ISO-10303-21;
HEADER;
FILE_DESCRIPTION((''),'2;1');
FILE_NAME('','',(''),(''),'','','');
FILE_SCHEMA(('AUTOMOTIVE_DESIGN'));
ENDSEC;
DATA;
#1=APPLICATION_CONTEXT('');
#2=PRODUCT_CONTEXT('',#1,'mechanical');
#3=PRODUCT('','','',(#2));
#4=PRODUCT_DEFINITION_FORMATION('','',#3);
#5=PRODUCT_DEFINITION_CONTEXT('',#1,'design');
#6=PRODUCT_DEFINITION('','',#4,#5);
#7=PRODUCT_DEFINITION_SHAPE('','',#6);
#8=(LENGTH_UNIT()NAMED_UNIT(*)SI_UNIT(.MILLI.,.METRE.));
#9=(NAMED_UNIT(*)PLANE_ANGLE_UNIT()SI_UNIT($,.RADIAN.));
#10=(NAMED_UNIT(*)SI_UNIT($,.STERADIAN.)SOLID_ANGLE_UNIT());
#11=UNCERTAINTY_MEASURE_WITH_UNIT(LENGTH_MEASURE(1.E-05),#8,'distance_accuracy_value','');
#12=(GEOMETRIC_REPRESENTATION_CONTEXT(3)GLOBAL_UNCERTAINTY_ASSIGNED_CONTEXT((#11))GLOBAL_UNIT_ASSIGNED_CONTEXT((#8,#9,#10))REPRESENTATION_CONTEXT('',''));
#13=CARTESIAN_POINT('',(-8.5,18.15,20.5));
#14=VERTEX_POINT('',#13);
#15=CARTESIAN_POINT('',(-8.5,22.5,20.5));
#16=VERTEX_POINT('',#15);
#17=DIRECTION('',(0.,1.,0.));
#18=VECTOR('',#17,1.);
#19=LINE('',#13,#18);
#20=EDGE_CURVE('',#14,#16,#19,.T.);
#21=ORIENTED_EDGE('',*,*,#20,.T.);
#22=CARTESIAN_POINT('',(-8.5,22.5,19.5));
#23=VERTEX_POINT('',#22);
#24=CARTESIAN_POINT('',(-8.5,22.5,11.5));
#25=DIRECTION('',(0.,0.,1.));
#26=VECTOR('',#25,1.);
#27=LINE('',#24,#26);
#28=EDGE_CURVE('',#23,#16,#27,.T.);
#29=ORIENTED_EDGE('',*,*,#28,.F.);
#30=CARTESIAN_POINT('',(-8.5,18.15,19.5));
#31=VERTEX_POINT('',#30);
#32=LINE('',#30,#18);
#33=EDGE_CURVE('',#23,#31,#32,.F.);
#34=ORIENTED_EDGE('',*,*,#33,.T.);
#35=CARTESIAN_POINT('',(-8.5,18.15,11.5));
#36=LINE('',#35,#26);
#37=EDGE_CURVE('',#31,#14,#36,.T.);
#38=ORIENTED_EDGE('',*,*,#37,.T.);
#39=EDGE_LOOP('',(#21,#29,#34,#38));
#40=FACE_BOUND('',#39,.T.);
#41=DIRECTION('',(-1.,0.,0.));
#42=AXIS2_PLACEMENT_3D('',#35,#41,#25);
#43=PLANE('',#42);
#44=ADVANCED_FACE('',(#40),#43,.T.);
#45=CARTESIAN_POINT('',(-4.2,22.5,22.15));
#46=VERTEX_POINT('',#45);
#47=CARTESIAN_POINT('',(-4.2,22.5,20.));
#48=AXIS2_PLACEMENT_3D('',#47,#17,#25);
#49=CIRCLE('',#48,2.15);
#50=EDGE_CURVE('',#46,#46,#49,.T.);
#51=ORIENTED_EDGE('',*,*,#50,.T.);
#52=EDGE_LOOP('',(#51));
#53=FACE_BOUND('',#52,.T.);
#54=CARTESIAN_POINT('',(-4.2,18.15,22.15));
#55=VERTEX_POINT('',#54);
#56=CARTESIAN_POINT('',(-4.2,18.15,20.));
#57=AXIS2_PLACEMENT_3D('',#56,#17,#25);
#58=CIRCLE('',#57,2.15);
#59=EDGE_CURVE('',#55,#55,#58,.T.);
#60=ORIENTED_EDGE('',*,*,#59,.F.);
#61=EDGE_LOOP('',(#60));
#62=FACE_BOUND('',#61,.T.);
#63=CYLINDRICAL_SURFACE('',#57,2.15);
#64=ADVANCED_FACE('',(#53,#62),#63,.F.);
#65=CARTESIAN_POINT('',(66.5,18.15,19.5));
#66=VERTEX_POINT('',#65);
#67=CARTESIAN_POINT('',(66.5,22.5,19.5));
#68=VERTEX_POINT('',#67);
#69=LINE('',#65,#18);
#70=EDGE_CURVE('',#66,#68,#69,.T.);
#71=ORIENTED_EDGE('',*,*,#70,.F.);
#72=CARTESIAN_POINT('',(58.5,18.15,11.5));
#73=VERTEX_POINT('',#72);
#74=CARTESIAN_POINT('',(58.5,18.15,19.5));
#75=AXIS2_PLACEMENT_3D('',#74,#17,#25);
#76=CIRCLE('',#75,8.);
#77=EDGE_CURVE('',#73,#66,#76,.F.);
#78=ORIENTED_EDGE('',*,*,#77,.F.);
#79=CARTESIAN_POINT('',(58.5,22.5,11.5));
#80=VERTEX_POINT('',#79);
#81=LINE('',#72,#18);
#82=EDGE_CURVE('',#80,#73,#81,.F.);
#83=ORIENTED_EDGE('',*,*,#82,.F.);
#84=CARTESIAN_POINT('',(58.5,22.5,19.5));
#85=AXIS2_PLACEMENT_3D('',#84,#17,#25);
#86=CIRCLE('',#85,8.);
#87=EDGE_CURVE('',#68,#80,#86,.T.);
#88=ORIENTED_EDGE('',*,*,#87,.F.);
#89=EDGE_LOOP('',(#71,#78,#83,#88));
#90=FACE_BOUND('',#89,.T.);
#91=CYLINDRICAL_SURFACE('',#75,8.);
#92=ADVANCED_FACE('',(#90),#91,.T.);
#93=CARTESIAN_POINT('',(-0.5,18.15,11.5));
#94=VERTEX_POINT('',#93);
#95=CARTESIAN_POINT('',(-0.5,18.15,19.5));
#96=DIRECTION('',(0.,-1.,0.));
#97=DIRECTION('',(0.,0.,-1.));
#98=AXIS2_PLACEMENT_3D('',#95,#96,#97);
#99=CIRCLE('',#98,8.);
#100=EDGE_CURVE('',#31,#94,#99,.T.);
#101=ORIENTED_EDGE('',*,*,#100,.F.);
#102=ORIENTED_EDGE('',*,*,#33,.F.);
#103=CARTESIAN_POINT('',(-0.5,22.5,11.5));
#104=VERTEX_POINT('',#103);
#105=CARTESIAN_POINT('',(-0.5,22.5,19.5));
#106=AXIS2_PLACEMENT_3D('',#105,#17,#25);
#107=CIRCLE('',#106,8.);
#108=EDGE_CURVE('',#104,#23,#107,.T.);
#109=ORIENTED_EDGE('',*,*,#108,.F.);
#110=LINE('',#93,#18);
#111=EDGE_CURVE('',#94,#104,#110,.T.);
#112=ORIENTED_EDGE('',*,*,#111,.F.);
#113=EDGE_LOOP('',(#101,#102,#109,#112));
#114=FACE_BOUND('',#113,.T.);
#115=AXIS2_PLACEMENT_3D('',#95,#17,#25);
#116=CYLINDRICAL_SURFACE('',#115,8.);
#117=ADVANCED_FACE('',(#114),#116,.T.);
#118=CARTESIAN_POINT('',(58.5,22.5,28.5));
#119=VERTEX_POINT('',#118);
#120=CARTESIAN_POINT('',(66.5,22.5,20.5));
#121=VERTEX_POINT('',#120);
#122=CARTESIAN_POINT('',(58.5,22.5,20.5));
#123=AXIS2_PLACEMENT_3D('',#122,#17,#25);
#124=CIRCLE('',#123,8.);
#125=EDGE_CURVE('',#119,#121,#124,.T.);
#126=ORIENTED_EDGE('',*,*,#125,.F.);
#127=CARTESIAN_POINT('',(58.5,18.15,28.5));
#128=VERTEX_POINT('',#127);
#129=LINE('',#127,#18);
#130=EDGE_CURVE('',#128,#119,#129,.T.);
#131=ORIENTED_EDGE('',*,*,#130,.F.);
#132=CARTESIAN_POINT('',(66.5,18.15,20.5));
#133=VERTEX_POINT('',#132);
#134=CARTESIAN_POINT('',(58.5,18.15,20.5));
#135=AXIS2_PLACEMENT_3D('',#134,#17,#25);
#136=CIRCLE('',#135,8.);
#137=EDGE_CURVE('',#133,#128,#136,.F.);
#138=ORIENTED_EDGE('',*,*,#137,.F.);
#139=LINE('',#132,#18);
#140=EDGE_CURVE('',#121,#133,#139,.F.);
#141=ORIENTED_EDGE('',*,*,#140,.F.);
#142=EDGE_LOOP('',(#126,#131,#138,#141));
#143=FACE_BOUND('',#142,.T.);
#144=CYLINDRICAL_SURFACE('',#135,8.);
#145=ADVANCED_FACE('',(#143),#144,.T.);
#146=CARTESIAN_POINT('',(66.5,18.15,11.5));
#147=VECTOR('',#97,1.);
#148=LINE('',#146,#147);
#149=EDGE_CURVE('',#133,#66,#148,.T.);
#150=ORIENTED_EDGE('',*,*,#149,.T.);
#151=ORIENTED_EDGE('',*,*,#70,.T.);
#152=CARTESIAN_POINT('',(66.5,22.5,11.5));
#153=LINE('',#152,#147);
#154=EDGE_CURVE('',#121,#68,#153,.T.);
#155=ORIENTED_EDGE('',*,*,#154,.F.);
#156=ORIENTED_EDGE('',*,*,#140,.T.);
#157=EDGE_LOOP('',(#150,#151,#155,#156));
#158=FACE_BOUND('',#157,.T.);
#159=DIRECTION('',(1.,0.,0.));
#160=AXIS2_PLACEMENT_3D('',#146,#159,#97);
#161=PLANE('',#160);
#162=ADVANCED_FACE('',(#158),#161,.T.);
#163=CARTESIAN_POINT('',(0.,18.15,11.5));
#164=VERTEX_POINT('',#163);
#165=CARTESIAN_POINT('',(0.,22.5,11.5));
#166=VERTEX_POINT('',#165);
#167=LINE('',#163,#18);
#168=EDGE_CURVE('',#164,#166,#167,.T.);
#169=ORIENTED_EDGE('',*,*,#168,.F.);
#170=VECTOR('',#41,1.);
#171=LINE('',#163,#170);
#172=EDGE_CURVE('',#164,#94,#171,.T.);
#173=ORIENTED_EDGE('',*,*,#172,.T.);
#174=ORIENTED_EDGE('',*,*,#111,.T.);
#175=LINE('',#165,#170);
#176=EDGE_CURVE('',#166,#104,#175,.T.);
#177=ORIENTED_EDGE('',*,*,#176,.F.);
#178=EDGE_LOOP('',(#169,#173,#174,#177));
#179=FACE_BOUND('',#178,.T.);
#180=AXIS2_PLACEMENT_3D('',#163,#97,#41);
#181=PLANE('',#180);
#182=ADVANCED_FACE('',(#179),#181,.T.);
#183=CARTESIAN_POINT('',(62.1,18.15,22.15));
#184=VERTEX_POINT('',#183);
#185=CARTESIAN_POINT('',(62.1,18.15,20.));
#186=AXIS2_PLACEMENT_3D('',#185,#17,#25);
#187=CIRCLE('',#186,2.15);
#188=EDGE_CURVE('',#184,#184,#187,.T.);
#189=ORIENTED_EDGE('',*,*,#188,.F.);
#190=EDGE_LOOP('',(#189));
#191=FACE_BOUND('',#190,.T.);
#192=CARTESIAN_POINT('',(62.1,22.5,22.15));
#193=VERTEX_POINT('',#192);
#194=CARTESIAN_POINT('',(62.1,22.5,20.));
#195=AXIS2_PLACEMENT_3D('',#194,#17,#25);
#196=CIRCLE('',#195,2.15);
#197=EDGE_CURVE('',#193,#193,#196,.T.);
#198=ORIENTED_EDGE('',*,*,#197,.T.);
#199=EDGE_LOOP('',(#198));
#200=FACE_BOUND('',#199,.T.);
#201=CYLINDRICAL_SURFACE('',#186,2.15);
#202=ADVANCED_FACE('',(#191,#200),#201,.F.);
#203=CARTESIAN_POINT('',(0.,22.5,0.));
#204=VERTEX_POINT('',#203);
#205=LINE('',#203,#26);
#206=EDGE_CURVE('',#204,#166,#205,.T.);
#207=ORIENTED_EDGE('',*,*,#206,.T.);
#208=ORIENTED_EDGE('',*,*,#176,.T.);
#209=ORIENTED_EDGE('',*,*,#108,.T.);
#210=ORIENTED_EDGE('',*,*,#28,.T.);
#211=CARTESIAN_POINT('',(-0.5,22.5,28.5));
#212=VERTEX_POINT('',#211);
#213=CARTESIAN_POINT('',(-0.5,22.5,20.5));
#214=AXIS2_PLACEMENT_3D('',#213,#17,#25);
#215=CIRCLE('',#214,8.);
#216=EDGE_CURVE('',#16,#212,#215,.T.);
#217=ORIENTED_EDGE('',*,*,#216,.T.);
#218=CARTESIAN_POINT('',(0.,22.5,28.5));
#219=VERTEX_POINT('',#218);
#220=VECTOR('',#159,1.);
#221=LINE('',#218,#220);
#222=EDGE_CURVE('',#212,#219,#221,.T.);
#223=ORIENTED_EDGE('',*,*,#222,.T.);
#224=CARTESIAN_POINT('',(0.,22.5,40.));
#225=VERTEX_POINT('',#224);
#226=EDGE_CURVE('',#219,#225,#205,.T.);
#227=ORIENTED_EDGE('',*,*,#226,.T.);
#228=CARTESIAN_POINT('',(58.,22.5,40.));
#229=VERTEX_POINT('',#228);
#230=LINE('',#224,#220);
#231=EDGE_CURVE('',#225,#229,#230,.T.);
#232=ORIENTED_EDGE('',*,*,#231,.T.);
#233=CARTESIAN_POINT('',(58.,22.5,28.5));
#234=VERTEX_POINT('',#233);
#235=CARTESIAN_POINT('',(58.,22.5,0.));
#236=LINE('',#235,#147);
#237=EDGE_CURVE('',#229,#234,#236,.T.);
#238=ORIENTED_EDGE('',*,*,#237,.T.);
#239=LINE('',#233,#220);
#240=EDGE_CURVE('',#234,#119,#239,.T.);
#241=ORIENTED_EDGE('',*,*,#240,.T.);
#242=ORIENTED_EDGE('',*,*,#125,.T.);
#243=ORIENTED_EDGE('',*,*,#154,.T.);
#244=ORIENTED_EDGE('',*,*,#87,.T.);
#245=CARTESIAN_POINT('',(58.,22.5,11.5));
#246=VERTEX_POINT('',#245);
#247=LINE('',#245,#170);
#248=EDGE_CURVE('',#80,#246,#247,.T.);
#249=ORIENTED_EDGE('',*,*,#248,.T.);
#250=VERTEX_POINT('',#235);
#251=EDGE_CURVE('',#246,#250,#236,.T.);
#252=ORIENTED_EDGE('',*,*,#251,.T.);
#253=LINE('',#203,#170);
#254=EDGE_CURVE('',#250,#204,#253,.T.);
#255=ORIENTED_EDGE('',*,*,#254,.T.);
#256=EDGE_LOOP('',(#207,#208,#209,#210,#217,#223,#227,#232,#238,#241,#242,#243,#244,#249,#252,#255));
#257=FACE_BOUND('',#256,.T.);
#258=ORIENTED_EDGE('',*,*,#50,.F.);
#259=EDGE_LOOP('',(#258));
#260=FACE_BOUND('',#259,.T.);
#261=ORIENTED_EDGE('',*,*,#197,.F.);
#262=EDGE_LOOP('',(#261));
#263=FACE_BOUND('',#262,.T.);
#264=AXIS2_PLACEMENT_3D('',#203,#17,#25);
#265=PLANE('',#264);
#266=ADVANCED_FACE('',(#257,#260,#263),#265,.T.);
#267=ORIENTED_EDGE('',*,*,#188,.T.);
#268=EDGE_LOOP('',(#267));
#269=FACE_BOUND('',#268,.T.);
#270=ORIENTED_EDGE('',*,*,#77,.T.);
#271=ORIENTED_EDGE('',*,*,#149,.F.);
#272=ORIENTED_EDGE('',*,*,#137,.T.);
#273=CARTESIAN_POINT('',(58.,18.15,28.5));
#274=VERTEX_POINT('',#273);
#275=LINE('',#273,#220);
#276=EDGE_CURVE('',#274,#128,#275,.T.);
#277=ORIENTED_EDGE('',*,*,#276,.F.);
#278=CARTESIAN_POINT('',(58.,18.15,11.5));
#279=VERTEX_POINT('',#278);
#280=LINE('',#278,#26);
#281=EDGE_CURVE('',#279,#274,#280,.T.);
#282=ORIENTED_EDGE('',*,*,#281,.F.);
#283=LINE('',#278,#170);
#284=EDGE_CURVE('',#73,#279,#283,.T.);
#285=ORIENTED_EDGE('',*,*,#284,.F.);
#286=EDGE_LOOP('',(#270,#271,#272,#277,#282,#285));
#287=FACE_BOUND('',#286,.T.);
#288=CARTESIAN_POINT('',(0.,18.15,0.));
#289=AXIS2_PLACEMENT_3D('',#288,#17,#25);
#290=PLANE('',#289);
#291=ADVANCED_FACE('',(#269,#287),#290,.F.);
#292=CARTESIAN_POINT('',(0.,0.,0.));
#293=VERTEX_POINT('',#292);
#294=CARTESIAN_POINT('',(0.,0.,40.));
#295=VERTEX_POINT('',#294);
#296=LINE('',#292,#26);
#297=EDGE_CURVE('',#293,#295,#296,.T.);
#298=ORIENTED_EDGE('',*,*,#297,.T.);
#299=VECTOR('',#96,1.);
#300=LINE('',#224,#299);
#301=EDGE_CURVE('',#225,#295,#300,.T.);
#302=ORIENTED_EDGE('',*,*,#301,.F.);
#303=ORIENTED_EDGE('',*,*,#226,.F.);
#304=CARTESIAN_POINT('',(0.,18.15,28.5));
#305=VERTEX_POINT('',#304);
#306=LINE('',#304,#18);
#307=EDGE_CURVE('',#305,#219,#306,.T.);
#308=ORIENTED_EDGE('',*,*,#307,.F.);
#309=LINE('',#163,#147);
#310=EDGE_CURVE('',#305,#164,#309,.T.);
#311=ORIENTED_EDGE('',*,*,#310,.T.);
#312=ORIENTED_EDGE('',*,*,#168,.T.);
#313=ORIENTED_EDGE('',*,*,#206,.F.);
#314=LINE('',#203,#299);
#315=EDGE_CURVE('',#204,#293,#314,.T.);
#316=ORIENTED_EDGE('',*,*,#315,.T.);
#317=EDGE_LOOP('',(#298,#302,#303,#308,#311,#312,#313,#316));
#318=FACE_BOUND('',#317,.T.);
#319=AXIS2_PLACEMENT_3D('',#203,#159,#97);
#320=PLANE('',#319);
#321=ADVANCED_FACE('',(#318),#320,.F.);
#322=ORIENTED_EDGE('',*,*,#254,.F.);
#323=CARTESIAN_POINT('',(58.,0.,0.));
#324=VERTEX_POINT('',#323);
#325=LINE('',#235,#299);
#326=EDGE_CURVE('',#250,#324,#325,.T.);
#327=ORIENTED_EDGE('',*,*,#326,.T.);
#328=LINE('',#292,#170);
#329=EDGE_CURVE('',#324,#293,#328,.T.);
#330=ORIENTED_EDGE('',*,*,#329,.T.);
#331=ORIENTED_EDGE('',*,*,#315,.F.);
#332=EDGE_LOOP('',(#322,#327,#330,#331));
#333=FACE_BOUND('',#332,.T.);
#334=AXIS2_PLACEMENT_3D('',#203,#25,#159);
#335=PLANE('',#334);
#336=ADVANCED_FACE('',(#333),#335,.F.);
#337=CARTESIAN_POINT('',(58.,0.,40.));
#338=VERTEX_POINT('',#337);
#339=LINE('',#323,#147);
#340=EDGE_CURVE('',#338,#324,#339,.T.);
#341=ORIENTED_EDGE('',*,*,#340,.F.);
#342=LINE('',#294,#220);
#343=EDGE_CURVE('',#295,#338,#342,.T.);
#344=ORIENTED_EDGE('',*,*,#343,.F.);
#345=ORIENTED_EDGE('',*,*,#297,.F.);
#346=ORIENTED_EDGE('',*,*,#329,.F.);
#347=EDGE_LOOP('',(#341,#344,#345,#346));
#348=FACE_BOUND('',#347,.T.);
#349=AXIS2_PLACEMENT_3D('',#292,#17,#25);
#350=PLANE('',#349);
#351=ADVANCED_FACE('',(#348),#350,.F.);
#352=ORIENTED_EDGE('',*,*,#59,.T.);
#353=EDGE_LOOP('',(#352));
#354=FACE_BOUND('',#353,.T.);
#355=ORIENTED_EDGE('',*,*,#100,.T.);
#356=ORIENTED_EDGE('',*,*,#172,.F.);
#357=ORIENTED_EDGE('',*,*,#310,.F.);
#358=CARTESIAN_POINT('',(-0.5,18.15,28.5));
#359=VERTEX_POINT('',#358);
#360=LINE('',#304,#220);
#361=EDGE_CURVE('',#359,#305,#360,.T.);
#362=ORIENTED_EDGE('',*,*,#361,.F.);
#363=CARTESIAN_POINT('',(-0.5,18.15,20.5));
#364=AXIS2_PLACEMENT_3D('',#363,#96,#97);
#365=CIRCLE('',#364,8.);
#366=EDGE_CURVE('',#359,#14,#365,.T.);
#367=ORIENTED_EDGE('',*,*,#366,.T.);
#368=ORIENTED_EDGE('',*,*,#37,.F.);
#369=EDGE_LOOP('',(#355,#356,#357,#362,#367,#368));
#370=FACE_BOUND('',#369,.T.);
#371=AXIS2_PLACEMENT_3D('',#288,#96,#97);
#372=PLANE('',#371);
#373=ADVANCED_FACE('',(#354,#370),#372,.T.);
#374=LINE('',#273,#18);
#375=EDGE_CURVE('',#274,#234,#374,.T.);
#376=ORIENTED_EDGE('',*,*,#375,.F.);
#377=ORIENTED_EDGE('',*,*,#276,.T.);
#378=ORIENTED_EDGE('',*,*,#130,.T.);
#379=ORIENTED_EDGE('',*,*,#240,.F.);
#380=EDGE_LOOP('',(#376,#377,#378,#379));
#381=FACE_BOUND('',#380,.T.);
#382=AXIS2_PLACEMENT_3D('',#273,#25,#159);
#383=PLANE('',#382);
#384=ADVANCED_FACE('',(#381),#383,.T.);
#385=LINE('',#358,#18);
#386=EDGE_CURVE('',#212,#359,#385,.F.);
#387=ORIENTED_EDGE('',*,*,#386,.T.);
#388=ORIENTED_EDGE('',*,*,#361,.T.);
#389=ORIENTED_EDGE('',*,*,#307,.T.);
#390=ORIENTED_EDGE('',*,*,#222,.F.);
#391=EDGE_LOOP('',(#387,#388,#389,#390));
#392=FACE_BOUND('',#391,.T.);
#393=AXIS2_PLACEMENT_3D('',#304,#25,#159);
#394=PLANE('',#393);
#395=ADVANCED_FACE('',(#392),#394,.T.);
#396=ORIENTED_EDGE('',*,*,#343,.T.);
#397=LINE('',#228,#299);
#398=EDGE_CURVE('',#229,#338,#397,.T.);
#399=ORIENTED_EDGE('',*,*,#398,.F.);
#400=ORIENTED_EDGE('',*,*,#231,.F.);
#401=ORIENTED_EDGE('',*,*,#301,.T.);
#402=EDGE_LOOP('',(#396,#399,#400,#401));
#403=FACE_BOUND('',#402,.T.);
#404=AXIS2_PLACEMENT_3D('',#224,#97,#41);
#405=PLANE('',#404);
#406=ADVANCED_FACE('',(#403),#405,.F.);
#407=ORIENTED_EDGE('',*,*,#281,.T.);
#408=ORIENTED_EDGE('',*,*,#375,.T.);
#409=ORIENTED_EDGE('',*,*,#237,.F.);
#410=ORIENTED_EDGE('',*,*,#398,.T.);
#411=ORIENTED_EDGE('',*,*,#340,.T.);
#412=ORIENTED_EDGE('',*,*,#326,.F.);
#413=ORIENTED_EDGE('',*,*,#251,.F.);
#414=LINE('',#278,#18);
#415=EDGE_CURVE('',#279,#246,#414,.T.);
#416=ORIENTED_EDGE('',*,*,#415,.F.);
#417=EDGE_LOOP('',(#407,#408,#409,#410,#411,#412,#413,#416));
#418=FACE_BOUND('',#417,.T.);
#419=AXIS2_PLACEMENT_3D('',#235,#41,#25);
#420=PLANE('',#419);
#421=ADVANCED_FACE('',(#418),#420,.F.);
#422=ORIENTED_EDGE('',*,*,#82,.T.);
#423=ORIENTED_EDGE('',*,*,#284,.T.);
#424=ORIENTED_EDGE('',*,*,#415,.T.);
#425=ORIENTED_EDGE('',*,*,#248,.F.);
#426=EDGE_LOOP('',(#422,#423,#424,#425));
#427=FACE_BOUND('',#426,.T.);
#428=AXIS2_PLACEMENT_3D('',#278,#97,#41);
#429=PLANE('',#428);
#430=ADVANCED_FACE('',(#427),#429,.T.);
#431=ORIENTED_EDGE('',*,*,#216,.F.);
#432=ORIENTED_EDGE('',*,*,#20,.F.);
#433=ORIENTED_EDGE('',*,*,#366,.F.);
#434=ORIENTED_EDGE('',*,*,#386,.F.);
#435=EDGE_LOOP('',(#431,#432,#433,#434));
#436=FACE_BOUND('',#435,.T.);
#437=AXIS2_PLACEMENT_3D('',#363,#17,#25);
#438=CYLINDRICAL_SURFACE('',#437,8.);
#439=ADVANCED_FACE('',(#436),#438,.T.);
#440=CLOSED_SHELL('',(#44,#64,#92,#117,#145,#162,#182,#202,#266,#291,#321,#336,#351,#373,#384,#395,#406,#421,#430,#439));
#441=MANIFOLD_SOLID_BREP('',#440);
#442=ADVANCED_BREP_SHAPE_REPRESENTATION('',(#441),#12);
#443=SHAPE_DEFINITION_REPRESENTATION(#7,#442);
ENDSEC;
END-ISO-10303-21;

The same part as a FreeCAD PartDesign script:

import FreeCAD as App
import Part
import Sketcher
Q = App.Units.Quantity


def edges_at(feature, points):
    """Names of the edges that pass closest to the given points."""
    edges = feature.Shape.Edges
    near = lambda p: min(range(len(edges)), key=lambda i: edges[i].distToShape(Part.Vertex(*p))[0])
    return sorted({f"Edge{near(p) + 1}" for p in points})

doc = App.newDocument("Part")
params = doc.addObject("Spreadsheet::Sheet", "Params")
for row, (alias, value) in enumerate([
    ("sketch1_width", "58 mm"),
    ("sketch1_height", "40 mm"),
    ("pad1_length", "22.5 mm"),
    ("sketch2_diameter", "4.3 mm"),
    ("sketch2_height", "17 mm"),
    ("sketch2_width", "8.5 mm"),
    ("pad2_length", "4.35 mm"),
    ("fillet_radius", "8 mm"),
], start=1):
    params.set(f"A{row}", alias)
    params.set(f"B{row}", "=" + value)
    params.setAlias(f"B{row}", alias)

body = doc.addObject("PartDesign::Body", "Body")

# Sketch on XZ plane
sketch1 = body.newObject("Sketcher::SketchObject", "Sketch")
sketch1.AttachmentSupport = (doc.getObject("XZ_Plane"), [""])
sketch1.MapMode = "FlatFace"
sketch1.addGeometry(Part.LineSegment(App.Vector(0, 0, 0), App.Vector(0, 40, 0)), False)
sketch1.addGeometry(Part.LineSegment(App.Vector(0, 40, 0), App.Vector(58, 40, 0)), False)
sketch1.addGeometry(Part.LineSegment(App.Vector(58, 40, 0), App.Vector(58, 0, 0)), False)
sketch1.addGeometry(Part.LineSegment(App.Vector(58, 0, 0), App.Vector(0, 0, 0)), False)
sketch1.addConstraint(Sketcher.Constraint("Coincident", 0, 2, 1, 1))
sketch1.addConstraint(Sketcher.Constraint("Coincident", 1, 2, 2, 1))
sketch1.addConstraint(Sketcher.Constraint("Coincident", 2, 2, 3, 1))
sketch1.addConstraint(Sketcher.Constraint("Coincident", 3, 2, 0, 1))
sketch1.addConstraint(Sketcher.Constraint("Vertical", 0))
sketch1.addConstraint(Sketcher.Constraint("Horizontal", 1))
sketch1.addConstraint(Sketcher.Constraint("Vertical", 2))
sketch1.addConstraint(Sketcher.Constraint("Horizontal", 3))
sketch1.addConstraint(Sketcher.Constraint("Coincident", 3, 2, -1, 1))
sketch1.addConstraint(Sketcher.Constraint("DistanceX", 1, 1, 1, 2, Q("58 mm")))
sketch1.addConstraint(Sketcher.Constraint("DistanceY", 0, 1, 0, 2, Q("40 mm")))
sketch1.setExpression("Constraints[9]", "Params.sketch1_width")
sketch1.setExpression("Constraints[10]", "Params.sketch1_height")
pad1 = body.newObject("PartDesign::Pad", "Pad")
pad1.Profile = sketch1
pad1.setExpression("Length", "Params.pad1_length")
pad1.Reversed = True

# Sketch on XZ plane
sketch2 = body.newObject("Sketcher::SketchObject", "Sketch001")
sketch2.AttachmentSupport = (doc.getObject("XZ_Plane"), [""])
sketch2.MapMode = "FlatFace"
sketch2.AttachmentOffset = App.Placement(App.Vector(0, 0, -22.5), App.Rotation())
sketch2.addGeometry(Part.LineSegment(App.Vector(58, 11.5, 0), App.Vector(58, 28.5, 0)), False)
sketch2.addGeometry(Part.LineSegment(App.Vector(58, 28.5, 0), App.Vector(66.5, 28.5, 0)), False)
sketch2.addGeometry(Part.LineSegment(App.Vector(66.5, 28.5, 0), App.Vector(66.5, 11.5, 0)), False)
sketch2.addGeometry(Part.LineSegment(App.Vector(66.5, 11.5, 0), App.Vector(58, 11.5, 0)), False)
sketch2.addGeometry(Part.Circle(App.Vector(62.1, 20, 0), App.Vector(0, 0, 1), 2.1), False)
sketch2.addGeometry(Part.LineSegment(App.Vector(-8.5, 11.5, 0), App.Vector(-8.5, 28.5, 0)), False)
sketch2.addGeometry(Part.LineSegment(App.Vector(-8.5, 28.5, 0), App.Vector(0, 28.5, 0)), False)
sketch2.addGeometry(Part.LineSegment(App.Vector(0, 28.5, 0), App.Vector(0, 11.5, 0)), False)
sketch2.addGeometry(Part.LineSegment(App.Vector(0, 11.5, 0), App.Vector(-8.5, 11.5, 0)), False)
sketch2.addGeometry(Part.Circle(App.Vector(-4.2, 20, 0), App.Vector(0, 0, 1), 2.1), False)
sketch2.addConstraint(Sketcher.Constraint("Coincident", 0, 2, 1, 1))
sketch2.addConstraint(Sketcher.Constraint("Coincident", 1, 2, 2, 1))
sketch2.addConstraint(Sketcher.Constraint("Coincident", 2, 2, 3, 1))
sketch2.addConstraint(Sketcher.Constraint("Coincident", 3, 2, 0, 1))
sketch2.addConstraint(Sketcher.Constraint("Coincident", 5, 2, 6, 1))
sketch2.addConstraint(Sketcher.Constraint("Coincident", 6, 2, 7, 1))
sketch2.addConstraint(Sketcher.Constraint("Coincident", 7, 2, 8, 1))
sketch2.addConstraint(Sketcher.Constraint("Coincident", 8, 2, 5, 1))
sketch2.addConstraint(Sketcher.Constraint("Vertical", 0))
sketch2.addConstraint(Sketcher.Constraint("Horizontal", 1))
sketch2.addConstraint(Sketcher.Constraint("Vertical", 2))
sketch2.addConstraint(Sketcher.Constraint("Horizontal", 3))
sketch2.addConstraint(Sketcher.Constraint("Vertical", 5))
sketch2.addConstraint(Sketcher.Constraint("Horizontal", 6))
sketch2.addConstraint(Sketcher.Constraint("Vertical", 7))
sketch2.addConstraint(Sketcher.Constraint("Horizontal", 8))
sketch2.addConstraint(Sketcher.Constraint("Equal", 4, 9))
sketch2.addConstraint(Sketcher.Constraint("PointOnObject", 6, 2, -2))
sketch2.addConstraint(Sketcher.Constraint("Horizontal", 4, 3, 9, 3))
sketch2.addConstraint(Sketcher.Constraint("Horizontal", 1, 2, 5, 2))
sketch2.addConstraint(Sketcher.Constraint("Horizontal", 3, 2, 7, 2))
sketch2.addConstraint(Sketcher.Constraint("Equal", 3, 6))
sketch2.addConstraint(Sketcher.Constraint("Diameter", 4, Q("4.3 mm")))
sketch2.addConstraint(Sketcher.Constraint("DistanceY", 0, 1, 0, 2, Q("17 mm")))
sketch2.addConstraint(Sketcher.Constraint("DistanceX", 1, 1, 1, 2, Q("8.5 mm")))
sketch2.addConstraint(Sketcher.Constraint("DistanceY", -1, 1, 4, 3, Q("20 mm")))
sketch2.addConstraint(Sketcher.Constraint("DistanceX", -1, 1, 0, 2, Q("58 mm")))
sketch2.addConstraint(Sketcher.Constraint("DistanceX", -1, 1, 4, 3, Q("62.1 mm")))
sketch2.addConstraint(Sketcher.Constraint("DistanceX", 9, 3, -1, 1, Q("4.2 mm")))
sketch2.addConstraint(Sketcher.Constraint("DistanceY", -1, 1, 0, 2, Q("28.5 mm")))
sketch2.setExpression("Constraints[22]", "Params.sketch2_diameter")
sketch2.setExpression("Constraints[23]", "Params.sketch2_height")
sketch2.setExpression("Constraints[24]", "Params.sketch2_width")
pad2 = body.newObject("PartDesign::Pad", "Pad001")
pad2.Profile = sketch2
pad2.setExpression("Length", "Params.pad2_length")
doc.recompute()

fillet = body.newObject("PartDesign::Fillet", "Fillet")
fillet.Base = (pad2, edges_at(pad2, [
    (66.5, 20.325, 11.5),
    (66.5, 20.325, 28.5),
    (-8.5, 20.325, 28.5),
    (-8.5, 20.325, 11.5),
]))
fillet.setExpression("Radius", "Params.fillet_radius")

doc.recompute()
